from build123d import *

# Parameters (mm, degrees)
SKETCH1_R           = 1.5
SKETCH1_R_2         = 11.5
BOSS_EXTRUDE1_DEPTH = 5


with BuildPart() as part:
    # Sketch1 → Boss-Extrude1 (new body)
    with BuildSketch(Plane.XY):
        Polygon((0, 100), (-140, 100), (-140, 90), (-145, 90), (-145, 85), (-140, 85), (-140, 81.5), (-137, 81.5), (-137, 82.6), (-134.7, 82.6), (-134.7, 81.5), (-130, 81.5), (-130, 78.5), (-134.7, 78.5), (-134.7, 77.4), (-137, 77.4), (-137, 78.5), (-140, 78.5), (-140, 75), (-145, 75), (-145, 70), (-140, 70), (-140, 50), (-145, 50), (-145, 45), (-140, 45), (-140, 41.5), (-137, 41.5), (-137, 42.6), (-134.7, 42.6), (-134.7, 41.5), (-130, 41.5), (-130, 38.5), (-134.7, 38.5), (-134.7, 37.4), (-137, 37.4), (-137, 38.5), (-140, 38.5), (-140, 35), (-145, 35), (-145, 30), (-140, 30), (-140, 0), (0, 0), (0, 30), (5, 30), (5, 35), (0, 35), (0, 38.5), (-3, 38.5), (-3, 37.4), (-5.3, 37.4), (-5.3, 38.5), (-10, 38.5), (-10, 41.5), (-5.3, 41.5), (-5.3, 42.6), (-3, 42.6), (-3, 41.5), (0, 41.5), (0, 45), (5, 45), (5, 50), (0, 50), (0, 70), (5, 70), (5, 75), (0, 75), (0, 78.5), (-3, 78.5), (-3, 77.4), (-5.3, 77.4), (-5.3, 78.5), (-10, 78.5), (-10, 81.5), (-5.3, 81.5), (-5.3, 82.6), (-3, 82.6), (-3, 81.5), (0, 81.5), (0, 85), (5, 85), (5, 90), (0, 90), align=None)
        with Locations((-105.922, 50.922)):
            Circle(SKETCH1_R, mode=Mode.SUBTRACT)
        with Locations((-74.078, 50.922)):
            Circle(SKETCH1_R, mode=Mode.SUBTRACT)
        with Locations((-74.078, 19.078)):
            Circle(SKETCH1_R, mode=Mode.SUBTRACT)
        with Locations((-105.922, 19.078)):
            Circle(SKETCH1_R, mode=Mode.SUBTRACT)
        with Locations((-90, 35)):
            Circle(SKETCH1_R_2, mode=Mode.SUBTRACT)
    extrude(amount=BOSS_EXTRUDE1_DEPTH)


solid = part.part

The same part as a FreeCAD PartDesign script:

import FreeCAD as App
import Part
import Sketcher
from FreeCAD import Vector
Q = App.Units.Quantity


def add_polygon(sketch, points):
    """Adds a closed chain of lines whose ends are joined by coincident constraints."""
    first, n = sketch.GeometryCount, len(points)
    for a, b in zip(points, points[1:] + points[:1]):
        sketch.addGeometry(Part.LineSegment(App.Vector(*a, 0), App.Vector(*b, 0)), False)
    for i in range(n):
        sketch.addConstraint(Sketcher.Constraint("Coincident", first + i, 2, first + (i + 1) % n, 1))

doc = App.newDocument("Part")
body = doc.addObject("PartDesign::Body", "Body")

sketch1 = doc.addObject("Sketcher::SketchObject", "Sketch")
body.addObject(sketch1)
sketch1.AttachmentSupport = (doc.XY_Plane, [""])
sketch1.MapMode = "FlatFace"
add_polygon(sketch1, [(0, 100), (-140, 100), (-140, 90), (-145, 90), (-145, 85), (-140, 85), (-140, 81.5), (-137, 81.5), (-137, 82.6), (-134.7, 82.6), (-134.7, 81.5), (-130, 81.5), (-130, 78.5), (-134.7, 78.5), (-134.7, 77.4), (-137, 77.4), (-137, 78.5), (-140, 78.5), (-140, 75), (-145, 75), (-145, 70), (-140, 70), (-140, 50), (-145, 50), (-145, 45), (-140, 45), (-140, 41.5), (-137, 41.5), (-137, 42.6), (-134.7, 42.6), (-134.7, 41.5), (-130, 41.5), (-130, 38.5), (-134.7, 38.5), (-134.7, 37.4), (-137, 37.4), (-137, 38.5), (-140, 38.5), (-140, 35), (-145, 35), (-145, 30), (-140, 30), (-140, 0), (0, 0), (0, 30), (5, 30), (5, 35), (0, 35), (0, 38.5), (-3, 38.5), (-3, 37.4), (-5.3, 37.4), (-5.3, 38.5), (-10, 38.5), (-10, 41.5), (-5.3, 41.5), (-5.3, 42.6), (-3, 42.6), (-3, 41.5), (0, 41.5), (0, 45), (5, 45), (5, 50), (0, 50), (0, 70), (5, 70), (5, 75), (0, 75), (0, 78.5), (-3, 78.5), (-3, 77.4), (-5.3, 77.4), (-5.3, 78.5), (-10, 78.5), (-10, 81.5), (-5.3, 81.5), (-5.3, 82.6), (-3, 82.6), (-3, 81.5), (0, 81.5), (0, 85), (5, 85), (5, 90), (0, 90)])
sketch1.addGeometry(Part.Circle(Vector(-105.922, 19.078, 0), Vector(0, 0, 1), 1.5), False)
sketch1.addGeometry(Part.Circle(Vector(-74.078, 19.078, 0), Vector(0, 0, 1), 1.5), False)
sketch1.addGeometry(Part.Circle(Vector(-105.922, 50.922, 0), Vector(0, 0, 1), 1.5), False)
sketch1.addGeometry(Part.Circle(Vector(-90, 35, 0), Vector(0, 0, 1), 11.5), False)
sketch1.addGeometry(Part.Circle(Vector(-74.078, 50.922, 0), Vector(0, 0, 1), 1.5), False)
sketch1.addConstraint(Sketcher.Constraint("Horizontal", 0))
sketch1.addConstraint(Sketcher.Constraint("Vertical", 1))
sketch1.addConstraint(Sketcher.Constraint("Horizontal", 2))
sketch1.addConstraint(Sketcher.Constraint("Vertical", 3))
sketch1.addConstraint(Sketcher.Constraint("Horizontal", 4))
sketch1.addConstraint(Sketcher.Constraint("Vertical", 5))
sketch1.addConstraint(Sketcher.Constraint("Horizontal", 6))
sketch1.addConstraint(Sketcher.Constraint("Vertical", 7))
sketch1.addConstraint(Sketcher.Constraint("Horizontal", 8))
sketch1.addConstraint(Sketcher.Constraint("Vertical", 9))
sketch1.addConstraint(Sketcher.Constraint("Horizontal", 10))
sketch1.addConstraint(Sketcher.Constraint("Vertical", 11))
sketch1.addConstraint(Sketcher.Constraint("Horizontal", 12))
sketch1.addConstraint(Sketcher.Constraint("Vertical", 13))
sketch1.addConstraint(Sketcher.Constraint("Horizontal", 14))
sketch1.addConstraint(Sketcher.Constraint("Vertical", 15))
sketch1.addConstraint(Sketcher.Constraint("Horizontal", 16))
sketch1.addConstraint(Sketcher.Constraint("Vertical", 17))
sketch1.addConstraint(Sketcher.Constraint("Horizontal", 18))
sketch1.addConstraint(Sketcher.Constraint("Vertical", 19))
sketch1.addConstraint(Sketcher.Constraint("Horizontal", 20))
sketch1.addConstraint(Sketcher.Constraint("Vertical", 21))
sketch1.addConstraint(Sketcher.Constraint("Horizontal", 22))
sketch1.addConstraint(Sketcher.Constraint("Vertical", 23))
sketch1.addConstraint(Sketcher.Constraint("Horizontal", 24))
sketch1.addConstraint(Sketcher.Constraint("Vertical", 25))
sketch1.addConstraint(Sketcher.Constraint("Horizontal", 26))
sketch1.addConstraint(Sketcher.Constraint("Vertical", 27))
sketch1.addConstraint(Sketcher.Constraint("Horizontal", 28))
sketch1.addConstraint(Sketcher.Constraint("Vertical", 29))
sketch1.addConstraint(Sketcher.Constraint("Horizontal", 30))
sketch1.addConstraint(Sketcher.Constraint("Vertical", 31))
sketch1.addConstraint(Sketcher.Constraint("Horizontal", 32))
sketch1.addConstraint(Sketcher.Constraint("Vertical", 33))
sketch1.addConstraint(Sketcher.Constraint("Horizontal", 34))
sketch1.addConstraint(Sketcher.Constraint("Vertical", 35))
sketch1.addConstraint(Sketcher.Constraint("Horizontal", 36))
sketch1.addConstraint(Sketcher.Constraint("Vertical", 37))
sketch1.addConstraint(Sketcher.Constraint("Horizontal", 38))
sketch1.addConstraint(Sketcher.Constraint("Vertical", 39))
sketch1.addConstraint(Sketcher.Constraint("Horizontal", 40))
sketch1.addConstraint(Sketcher.Constraint("Vertical", 41))
sketch1.addConstraint(Sketcher.Constraint("Horizontal", 42))
sketch1.addConstraint(Sketcher.Constraint("Vertical", 43))
sketch1.addConstraint(Sketcher.Constraint("Horizontal", 44))
sketch1.addConstraint(Sketcher.Constraint("Vertical", 45))
sketch1.addConstraint(Sketcher.Constraint("Horizontal", 46))
sketch1.addConstraint(Sketcher.Constraint("Vertical", 47))
sketch1.addConstraint(Sketcher.Constraint("Horizontal", 48))
sketch1.addConstraint(Sketcher.Constraint("Vertical", 49))
sketch1.addConstraint(Sketcher.Constraint("Horizontal", 50))
sketch1.addConstraint(Sketcher.Constraint("Vertical", 51))
sketch1.addConstraint(Sketcher.Constraint("Horizontal", 52))
sketch1.addConstraint(Sketcher.Constraint("Vertical", 53))
sketch1.addConstraint(Sketcher.Constraint("Horizontal", 54))
sketch1.addConstraint(Sketcher.Constraint("Vertical", 55))
sketch1.addConstraint(Sketcher.Constraint("Horizontal", 56))
sketch1.addConstraint(Sketcher.Constraint("Vertical", 57))
sketch1.addConstraint(Sketcher.Constraint("Horizontal", 58))
sketch1.addConstraint(Sketcher.Constraint("Vertical", 59))
sketch1.addConstraint(Sketcher.Constraint("Horizontal", 60))
sketch1.addConstraint(Sketcher.Constraint("Vertical", 61))
sketch1.addConstraint(Sketcher.Constraint("Horizontal", 62))
sketch1.addConstraint(Sketcher.Constraint("Vertical", 63))
sketch1.addConstraint(Sketcher.Constraint("Horizontal", 64))
sketch1.addConstraint(Sketcher.Constraint("Vertical", 65))
sketch1.addConstraint(Sketcher.Constraint("Horizontal", 66))
sketch1.addConstraint(Sketcher.Constraint("Vertical", 67))
sketch1.addConstraint(Sketcher.Constraint("Horizontal", 68))
sketch1.addConstraint(Sketcher.Constraint("Vertical", 69))
sketch1.addConstraint(Sketcher.Constraint("Horizontal", 70))
sketch1.addConstraint(Sketcher.Constraint("Vertical", 71))
sketch1.addConstraint(Sketcher.Constraint("Horizontal", 72))
sketch1.addConstraint(Sketcher.Constraint("Vertical", 73))
sketch1.addConstraint(Sketcher.Constraint("Horizontal", 74))
sketch1.addConstraint(Sketcher.Constraint("Vertical", 75))
sketch1.addConstraint(Sketcher.Constraint("Horizontal", 76))
sketch1.addConstraint(Sketcher.Constraint("Vertical", 77))
sketch1.addConstraint(Sketcher.Constraint("Horizontal", 78))
sketch1.addConstraint(Sketcher.Constraint("Vertical", 79))
sketch1.addConstraint(Sketcher.Constraint("Horizontal", 80))
sketch1.addConstraint(Sketcher.Constraint("Vertical", 81))
sketch1.addConstraint(Sketcher.Constraint("Horizontal", 82))
sketch1.addConstraint(Sketcher.Constraint("Vertical", 83))
sketch1.addConstraint(Sketcher.Constraint("Coincident", 42, 2, -1, 1))
sketch1.addConstraint(Sketcher.Constraint("Equal", 84, 85))
sketch1.addConstraint(Sketcher.Constraint("Equal", 85, 86))
sketch1.addConstraint(Sketcher.Constraint("Equal", 86, 88))
sketch1.addConstraint(Sketcher.Constraint("PointOnObject", 46, 2, -2))
sketch1.addConstraint(Sketcher.Constraint("PointOnObject", 58, 2, -2))
sketch1.addConstraint(Sketcher.Constraint("PointOnObject", 62, 2, -2))
sketch1.addConstraint(Sketcher.Constraint("PointOnObject", 66, 2, -2))
sketch1.addConstraint(Sketcher.Constraint("PointOnObject", 78, 2, -2))
sketch1.addConstraint(Sketcher.Constraint("PointOnObject", 82, 2, -2))
sketch1.addConstraint(Sketcher.Constraint("Horizontal", 84, 3, 85, 3))
sketch1.addConstraint(Sketcher.Constraint("Horizontal", 86, 3, 88, 3))
sketch1.addConstraint(Sketcher.Constraint("Horizontal", 6, 2, 9, 2))
sketch1.addConstraint(Sketcher.Constraint("Horizontal", 12, 2, 15, 2))
sketch1.addConstraint(Sketcher.Constraint("Horizontal", 26, 2, 29, 2))
sketch1.addConstraint(Sketcher.Constraint("Horizontal", 32, 2, 35, 2))
sketch1.addConstraint(Sketcher.Constraint("Horizontal", 87, 3, 37, 2))
sketch1.addConstraint(Sketcher.Constraint("Horizontal", 40, 2, 43, 2))
sketch1.addConstraint(Sketcher.Constraint("Horizontal", 38, 2, 45, 2))
sketch1.addConstraint(Sketcher.Constraint("Horizontal", 36, 2, 47, 2))
sketch1.addConstraint(Sketcher.Constraint("Horizontal", 34, 2, 49, 2))
sketch1.addConstraint(Sketcher.Constraint("Horizontal", 48, 2, 51, 2))
sketch1.addConstraint(Sketcher.Constraint("Horizontal", 30, 2, 53, 2))
sketch1.addConstraint(Sketcher.Constraint("Horizontal", 28, 2, 55, 2))
sketch1.addConstraint(Sketcher.Constraint("Horizontal", 54, 2, 57, 2))
sketch1.addConstraint(Sketcher.Constraint("Horizontal", 24, 2, 59, 2))
sketch1.addConstraint(Sketcher.Constraint("Horizontal", 22, 2, 61, 2))
sketch1.addConstraint(Sketcher.Constraint("Horizontal", 20, 2, 63, 2))
sketch1.addConstraint(Sketcher.Constraint("Horizontal", 18, 2, 65, 2))
sketch1.addConstraint(Sketcher.Constraint("Horizontal", 16, 2, 67, 2))
sketch1.addConstraint(Sketcher.Constraint("Horizontal", 14, 2, 69, 2))
sketch1.addConstraint(Sketcher.Constraint("Horizontal", 68, 2, 71, 2))
sketch1.addConstraint(Sketcher.Constraint("Horizontal", 10, 2, 73, 2))
sketch1.addConstraint(Sketcher.Constraint("Horizontal", 8, 2, 75, 2))
sketch1.addConstraint(Sketcher.Constraint("Horizontal", 74, 2, 77, 2))
sketch1.addConstraint(Sketcher.Constraint("Horizontal", 4, 2, 79, 2))
sketch1.addConstraint(Sketcher.Constraint("Horizontal", 2, 2, 81, 2))
sketch1.addConstraint(Sketcher.Constraint("Vertical", 84, 3, 86, 3))
sketch1.addConstraint(Sketcher.Constraint("Vertical", 85, 3, 88, 3))
sketch1.addConstraint(Sketcher.Constraint("Vertical", 1, 2, 4, 2))
sketch1.addConstraint(Sketcher.Constraint("Vertical", 9, 2, 12, 2))
sketch1.addConstraint(Sketcher.Constraint("Vertical", 7, 2, 14, 2))
sketch1.addConstraint(Sketcher.Constraint("Vertical", 5, 2, 16, 2))
sketch1.addConstraint(Sketcher.Constraint("Vertical", 3, 2, 18, 2))
sketch1.addConstraint(Sketcher.Constraint("Vertical", 17, 2, 20, 2))
sketch1.addConstraint(Sketcher.Constraint("Vertical", 19, 2, 22, 2))
sketch1.addConstraint(Sketcher.Constraint("Vertical", 21, 2, 24, 2))
sketch1.addConstraint(Sketcher.Constraint("Vertical", 15, 2, 26, 2))
sketch1.addConstraint(Sketcher.Constraint("Vertical", 13, 2, 28, 2))
sketch1.addConstraint(Sketcher.Constraint("Vertical", 11, 2, 30, 2))
sketch1.addConstraint(Sketcher.Constraint("Vertical", 29, 2, 32, 2))
sketch1.addConstraint(Sketcher.Constraint("Vertical", 27, 2, 34, 2))
sketch1.addConstraint(Sketcher.Constraint("Vertical", 25, 2, 36, 2))
sketch1.addConstraint(Sketcher.Constraint("Vertical", 23, 2, 38, 2))
sketch1.addConstraint(Sketcher.Constraint("Vertical", 37, 2, 40, 2))
sketch1.addConstraint(Sketcher.Constraint("Vertical", 51, 2, 54, 2))
sketch1.addConstraint(Sketcher.Constraint("Vertical", 49, 2, 56, 2))
sketch1.addConstraint(Sketcher.Constraint("Vertical", 45, 2, 60, 2))
sketch1.addConstraint(Sketcher.Constraint("Vertical", 61, 2, 64, 2))
sketch1.addConstraint(Sketcher.Constraint("Vertical", 57, 2, 68, 2))
sketch1.addConstraint(Sketcher.Constraint("Vertical", 55, 2, 70, 2))
sketch1.addConstraint(Sketcher.Constraint("Vertical", 53, 2, 72, 2))
sketch1.addConstraint(Sketcher.Constraint("Vertical", 71, 2, 74, 2))
sketch1.addConstraint(Sketcher.Constraint("Vertical", 69, 2, 76, 2))
sketch1.addConstraint(Sketcher.Constraint("Vertical", 65, 2, 80, 2))
sketch1.addConstraint(Sketcher.Constraint("Equal", 40, 44))
sketch1.addConstraint(Sketcher.Constraint("Equal", 36, 48))
sketch1.addConstraint(Sketcher.Constraint("Equal", 34, 50))
sketch1.addConstraint(Sketcher.Constraint("Equal", 32, 52))
sketch1.addConstraint(Sketcher.Constraint("Equal", 82, 3))
sketch1.addConstraint(Sketcher.Constraint("Equal", 78, 11))
sketch1.addConstraint(Sketcher.Constraint("Equal", 9, 13))
sketch1.addConstraint(Sketcher.Constraint("Equal", 5, 17))
sketch1.addConstraint(Sketcher.Constraint("Equal", 3, 19))
sketch1.addConstraint(Sketcher.Constraint("Equal", 19, 23))
sketch1.addConstraint(Sketcher.Constraint("Equal", 17, 25))
sketch1.addConstraint(Sketcher.Constraint("Equal", 15, 27))
sketch1.addConstraint(Sketcher.Constraint("Equal", 11, 31))
sketch1.addConstraint(Sketcher.Constraint("Equal", 29, 33))
sketch1.addConstraint(Sketcher.Constraint("Equal", 25, 37))
sketch1.addConstraint(Sketcher.Constraint("Equal", 23, 39))
sketch1.addConstraint(Sketcher.Constraint("Diameter", 84, Q("3 mm")))
sketch1.addConstraint(Sketcher.Constraint("Diameter", 87, Q("23 mm")))
sketch1.addConstraint(Sketcher.Constraint("DistanceX", 0, 2, 0, 1, Q("140 mm")))
sketch1.addConstraint(Sketcher.Constraint("DistanceX", 2, 2, 2, 1, Q("5 mm")))
sketch1.addConstraint(Sketcher.Constraint("DistanceX", 6, 1, 6, 2, Q("3 mm")))
sketch1.addConstraint(Sketcher.Constraint("DistanceY", 1, 2, 1, 1, Q("10 mm")))
sketch1.addConstraint(Sketcher.Constraint("DistanceY", 21, 2, 21, 1, Q("20 mm")))
sketch1.addConstraint(Sketcher.Constraint("DistanceY", 41, 2, 41, 1, Q("30 mm")))
sketch1.addConstraint(Sketcher.Constraint("DistanceX", 8, 1, 8, 2, Q("2.3 mm")))
sketch1.addConstraint(Sketcher.Constraint("DistanceX", 10, 1, 10, 2, Q("4.7 mm")))
sketch1.addConstraint(Sketcher.Constraint("DistanceY", 5, 2, 5, 1, Q("3.5 mm")))
sketch1.addConstraint(Sketcher.Constraint("DistanceY", 7, 1, 7, 2, Q("1.1 mm")))
sketch1.addConstraint(Sketcher.Constraint("DistanceX", 87, 3, -1, 1, Q("90 mm")))
sketch1.addConstraint(Sketcher.Constraint("DistanceX", 84, 3, -1, 1, Q("105.922 mm")))
sketch1.addConstraint(Sketcher.Constraint("DistanceY", -1, 1, 84, 3, Q("19.078 mm")))
sketch1.addConstraint(Sketcher.Constraint("DistanceX", 85, 3, -1, 1, Q("74.078 mm")))
sketch1.addConstraint(Sketcher.Constraint("DistanceY", -1, 1, 86, 3, Q("50.922 mm")))
pad1 = doc.addObject("PartDesign::Pad", "Pad")
body.addObject(pad1)
pad1.Profile = sketch1
pad1.Length = 5

doc.recompute()
